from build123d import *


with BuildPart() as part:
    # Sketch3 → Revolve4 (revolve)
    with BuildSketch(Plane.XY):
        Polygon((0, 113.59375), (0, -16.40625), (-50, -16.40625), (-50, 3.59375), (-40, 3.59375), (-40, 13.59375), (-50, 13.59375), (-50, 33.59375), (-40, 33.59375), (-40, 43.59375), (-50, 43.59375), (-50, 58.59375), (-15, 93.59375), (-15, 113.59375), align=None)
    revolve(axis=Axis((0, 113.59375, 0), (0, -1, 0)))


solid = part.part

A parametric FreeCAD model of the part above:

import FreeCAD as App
import Part
import Sketcher

V = App.Vector


def add_polygon(sketch, points):
    """Adds a closed chain of lines whose ends are joined by coincident constraints."""
    first, n = sketch.GeometryCount, len(points)
    for a, b in zip(points, points[1:] + points[:1]):
        sketch.addGeometry(Part.LineSegment(App.Vector(*a, 0), App.Vector(*b, 0)), False)
    for i in range(n):
        sketch.addConstraint(Sketcher.Constraint("Coincident", first + i, 2, first + (i + 1) % n, 1))

doc = App.newDocument("Part")
body = doc.addObject("PartDesign::Body", "Body")

# Sketch on XY plane
sketch1 = doc.addObject("Sketcher::SketchObject", "Sketch")
body.addObject(sketch1)
sketch1.AttachmentSupport = (doc.XY_Plane, [""])
sketch1.MapMode = "FlatFace"
add_polygon(sketch1, [(0, -16), (0, 114), (-15, 114), (-15, 94), (-50, 59), (-50, 44), (-40, 44), (-40, 34), (-50, 34), (-50, 14), (-40, 14), (-40, 4), (-50, 4), (-50, -16)])  # lines 0-13
sketch1.addConstraint([
    Sketcher.Constraint("Vertical", 0),
    Sketcher.Constraint("Horizontal", 1),
    Sketcher.Constraint("Vertical", 2),
    Sketcher.Constraint("Vertical", 4),
    Sketcher.Constraint("Horizontal", 5),
    Sketcher.Constraint("Vertical", 6),
    Sketcher.Constraint("Horizontal", 7),
    Sketcher.Constraint("Vertical", 8),
    Sketcher.Constraint("Horizontal", 9),
    Sketcher.Constraint("Vertical", 10),
    Sketcher.Constraint("Horizontal", 11),
    Sketcher.Constraint("Vertical", 12),
    Sketcher.Constraint("Horizontal", 13),
    Sketcher.Constraint("PointOnObject", 0, 2, -2),
    Sketcher.Constraint("Vertical", 4, 2, 7, 2),
    Sketcher.Constraint("Vertical", 6, 2, 9, 2),
    Sketcher.Constraint("Vertical", 8, 2, 11, 2),
    Sketcher.Constraint("Equal", 1, 4),
    Sketcher.Constraint("Equal", 11, 6),
    Sketcher.Constraint("Equal", 2, 8),
    Sketcher.Constraint("Equal", 6, 10),
    Sketcher.Constraint("Equal", 8, 12),
    Sketcher.Constraint("DistanceX", 1, 2, 1, 1, 15.0),
    Sketcher.Constraint("DistanceX", 5, 1, 5, 2, 10.0),
    Sketcher.Constraint("DistanceX", 13, 1, 13, 2, 50.0),
    Sketcher.Constraint("DistanceY", 0, 1, 0, 2, 130.0),
    Sketcher.Constraint("DistanceY", 2, 2, 2, 1, 20.0),
    Sketcher.Constraint("DistanceY", -1, 1, 0, 2, 113.59375),
])
revolution = doc.addObject("PartDesign::Revolution", "Revolution")
body.addObject(revolution)
revolution.Profile = sketch1
revolution.ReferenceAxis = (sketch1, ["V_Axis"])
revolution.Angle = 360

doc.recompute()
